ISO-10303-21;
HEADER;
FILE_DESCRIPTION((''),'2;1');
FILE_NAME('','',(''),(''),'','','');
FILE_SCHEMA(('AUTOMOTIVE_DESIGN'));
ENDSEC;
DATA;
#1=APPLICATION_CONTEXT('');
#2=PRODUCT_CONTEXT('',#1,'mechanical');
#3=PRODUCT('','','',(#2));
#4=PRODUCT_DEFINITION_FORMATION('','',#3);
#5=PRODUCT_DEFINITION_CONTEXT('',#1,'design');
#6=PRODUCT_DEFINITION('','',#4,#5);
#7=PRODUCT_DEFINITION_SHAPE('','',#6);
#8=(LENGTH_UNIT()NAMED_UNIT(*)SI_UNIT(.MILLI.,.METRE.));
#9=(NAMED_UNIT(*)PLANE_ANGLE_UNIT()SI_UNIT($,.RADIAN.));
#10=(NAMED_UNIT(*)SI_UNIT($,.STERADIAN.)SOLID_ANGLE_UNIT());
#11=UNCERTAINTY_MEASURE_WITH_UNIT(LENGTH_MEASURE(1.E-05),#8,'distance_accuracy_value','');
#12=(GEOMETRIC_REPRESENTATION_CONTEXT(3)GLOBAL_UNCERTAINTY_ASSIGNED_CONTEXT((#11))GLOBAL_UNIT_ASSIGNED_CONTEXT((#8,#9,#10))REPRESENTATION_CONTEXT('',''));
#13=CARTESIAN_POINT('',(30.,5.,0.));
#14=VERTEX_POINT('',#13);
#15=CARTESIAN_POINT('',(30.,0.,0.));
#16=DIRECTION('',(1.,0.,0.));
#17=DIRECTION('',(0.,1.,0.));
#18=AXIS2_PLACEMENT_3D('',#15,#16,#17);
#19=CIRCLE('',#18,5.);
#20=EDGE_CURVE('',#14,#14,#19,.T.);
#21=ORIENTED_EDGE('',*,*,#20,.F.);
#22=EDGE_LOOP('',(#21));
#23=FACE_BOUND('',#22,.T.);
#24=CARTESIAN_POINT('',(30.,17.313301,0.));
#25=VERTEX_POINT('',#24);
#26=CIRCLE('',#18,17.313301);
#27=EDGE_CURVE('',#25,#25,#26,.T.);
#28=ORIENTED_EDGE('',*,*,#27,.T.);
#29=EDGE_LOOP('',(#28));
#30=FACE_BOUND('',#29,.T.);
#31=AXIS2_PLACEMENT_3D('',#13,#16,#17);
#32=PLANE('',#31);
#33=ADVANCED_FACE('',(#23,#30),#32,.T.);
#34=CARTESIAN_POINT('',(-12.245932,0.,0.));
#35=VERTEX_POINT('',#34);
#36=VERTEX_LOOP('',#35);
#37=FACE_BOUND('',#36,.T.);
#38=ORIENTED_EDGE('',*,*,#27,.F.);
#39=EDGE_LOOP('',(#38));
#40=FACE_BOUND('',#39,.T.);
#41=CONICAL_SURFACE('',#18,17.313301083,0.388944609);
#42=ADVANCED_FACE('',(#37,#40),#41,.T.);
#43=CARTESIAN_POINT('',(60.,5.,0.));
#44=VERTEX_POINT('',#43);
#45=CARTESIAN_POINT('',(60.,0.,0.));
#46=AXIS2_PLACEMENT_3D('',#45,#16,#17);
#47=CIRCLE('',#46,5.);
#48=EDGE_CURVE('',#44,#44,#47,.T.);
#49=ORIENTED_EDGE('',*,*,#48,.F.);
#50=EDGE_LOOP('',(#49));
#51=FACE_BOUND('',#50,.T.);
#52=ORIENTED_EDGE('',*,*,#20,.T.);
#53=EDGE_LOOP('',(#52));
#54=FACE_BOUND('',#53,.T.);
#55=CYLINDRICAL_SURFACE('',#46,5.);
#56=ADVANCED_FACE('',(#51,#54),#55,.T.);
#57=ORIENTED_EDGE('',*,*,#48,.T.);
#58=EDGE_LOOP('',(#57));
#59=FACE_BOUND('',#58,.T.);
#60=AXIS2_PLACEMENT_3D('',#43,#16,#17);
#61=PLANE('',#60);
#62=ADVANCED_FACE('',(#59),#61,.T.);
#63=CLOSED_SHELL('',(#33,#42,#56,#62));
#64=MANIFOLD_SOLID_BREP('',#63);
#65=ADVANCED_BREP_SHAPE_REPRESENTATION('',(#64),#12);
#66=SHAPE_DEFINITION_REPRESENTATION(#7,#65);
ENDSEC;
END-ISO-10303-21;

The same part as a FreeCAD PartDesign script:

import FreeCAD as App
import Part
import Sketcher
from FreeCAD import Vector


def add_polygon(sketch, points):
    """Adds a closed chain of lines whose ends are joined by coincident constraints."""
    first, n = sketch.GeometryCount, len(points)
    for a, b in zip(points, points[1:] + points[:1]):
        sketch.addGeometry(Part.LineSegment(App.Vector(*a, 0), App.Vector(*b, 0)), False)
    for i in range(n):
        sketch.addConstraint(Sketcher.Constraint("Coincident", first + i, 2, first + (i + 1) % n, 1))

doc = App.newDocument("Part")
params = doc.addObject("Spreadsheet::Sheet", "Params")
for row, (alias, value) in enumerate([
    ("sketch1_width", "30 mm"),
    ("sketch1_height", "5 mm"),
    ("revolution_angle", "360 deg"),
], start=1):
    params.set(f"A{row}", alias)
    params.set(f"B{row}", "=" + value)
    params.setAlias(f"B{row}", alias)

body = doc.addObject("PartDesign::Body", "Body")

# Sketch on XY plane
sketch1 = body.newObject("Sketcher::SketchObject", "Sketch")
sketch1.AttachmentSupport = (doc.getObject("XY_Plane"), [""])
sketch1.MapMode = "FlatFace"
add_polygon(sketch1, [(30, 17.313301), (-12.245932, 0), (60, 0), (60, 5), (30, 5)])  # lines 0-4
sketch1.addConstraint([
    Sketcher.Constraint("Horizontal", 1),
    Sketcher.Constraint("Vertical", 2),
    Sketcher.Constraint("Horizontal", 3),
    Sketcher.Constraint("Vertical", 4),
    Sketcher.Constraint("PointOnObject", 0, 2, -1),
    Sketcher.Constraint("DistanceX", 3, 2, 3, 1, 30.0),
    Sketcher.Constraint("DistanceY", 2, 1, 2, 2, 5.0),
    Sketcher.Constraint("DistanceX", -1, 1, 1, 2, 60.0),
    Sketcher.Constraint("DistanceY", 4, 1, 4, 2, 12.313301),
    Sketcher.Constraint("DistanceX", 1, 1, 1, 2, 72.245932),
])
sketch1.setExpression("Constraints[10]", "Params.sketch1_width")
sketch1.setExpression("Constraints[11]", "Params.sketch1_height")
revolution = body.newObject("PartDesign::Revolution", "Revolution")
revolution.Profile = sketch1
revolution.ReferenceAxis = (sketch1, ["H_Axis"])
revolution.setExpression("Angle", "Params.revolution_angle")

doc.recompute()
